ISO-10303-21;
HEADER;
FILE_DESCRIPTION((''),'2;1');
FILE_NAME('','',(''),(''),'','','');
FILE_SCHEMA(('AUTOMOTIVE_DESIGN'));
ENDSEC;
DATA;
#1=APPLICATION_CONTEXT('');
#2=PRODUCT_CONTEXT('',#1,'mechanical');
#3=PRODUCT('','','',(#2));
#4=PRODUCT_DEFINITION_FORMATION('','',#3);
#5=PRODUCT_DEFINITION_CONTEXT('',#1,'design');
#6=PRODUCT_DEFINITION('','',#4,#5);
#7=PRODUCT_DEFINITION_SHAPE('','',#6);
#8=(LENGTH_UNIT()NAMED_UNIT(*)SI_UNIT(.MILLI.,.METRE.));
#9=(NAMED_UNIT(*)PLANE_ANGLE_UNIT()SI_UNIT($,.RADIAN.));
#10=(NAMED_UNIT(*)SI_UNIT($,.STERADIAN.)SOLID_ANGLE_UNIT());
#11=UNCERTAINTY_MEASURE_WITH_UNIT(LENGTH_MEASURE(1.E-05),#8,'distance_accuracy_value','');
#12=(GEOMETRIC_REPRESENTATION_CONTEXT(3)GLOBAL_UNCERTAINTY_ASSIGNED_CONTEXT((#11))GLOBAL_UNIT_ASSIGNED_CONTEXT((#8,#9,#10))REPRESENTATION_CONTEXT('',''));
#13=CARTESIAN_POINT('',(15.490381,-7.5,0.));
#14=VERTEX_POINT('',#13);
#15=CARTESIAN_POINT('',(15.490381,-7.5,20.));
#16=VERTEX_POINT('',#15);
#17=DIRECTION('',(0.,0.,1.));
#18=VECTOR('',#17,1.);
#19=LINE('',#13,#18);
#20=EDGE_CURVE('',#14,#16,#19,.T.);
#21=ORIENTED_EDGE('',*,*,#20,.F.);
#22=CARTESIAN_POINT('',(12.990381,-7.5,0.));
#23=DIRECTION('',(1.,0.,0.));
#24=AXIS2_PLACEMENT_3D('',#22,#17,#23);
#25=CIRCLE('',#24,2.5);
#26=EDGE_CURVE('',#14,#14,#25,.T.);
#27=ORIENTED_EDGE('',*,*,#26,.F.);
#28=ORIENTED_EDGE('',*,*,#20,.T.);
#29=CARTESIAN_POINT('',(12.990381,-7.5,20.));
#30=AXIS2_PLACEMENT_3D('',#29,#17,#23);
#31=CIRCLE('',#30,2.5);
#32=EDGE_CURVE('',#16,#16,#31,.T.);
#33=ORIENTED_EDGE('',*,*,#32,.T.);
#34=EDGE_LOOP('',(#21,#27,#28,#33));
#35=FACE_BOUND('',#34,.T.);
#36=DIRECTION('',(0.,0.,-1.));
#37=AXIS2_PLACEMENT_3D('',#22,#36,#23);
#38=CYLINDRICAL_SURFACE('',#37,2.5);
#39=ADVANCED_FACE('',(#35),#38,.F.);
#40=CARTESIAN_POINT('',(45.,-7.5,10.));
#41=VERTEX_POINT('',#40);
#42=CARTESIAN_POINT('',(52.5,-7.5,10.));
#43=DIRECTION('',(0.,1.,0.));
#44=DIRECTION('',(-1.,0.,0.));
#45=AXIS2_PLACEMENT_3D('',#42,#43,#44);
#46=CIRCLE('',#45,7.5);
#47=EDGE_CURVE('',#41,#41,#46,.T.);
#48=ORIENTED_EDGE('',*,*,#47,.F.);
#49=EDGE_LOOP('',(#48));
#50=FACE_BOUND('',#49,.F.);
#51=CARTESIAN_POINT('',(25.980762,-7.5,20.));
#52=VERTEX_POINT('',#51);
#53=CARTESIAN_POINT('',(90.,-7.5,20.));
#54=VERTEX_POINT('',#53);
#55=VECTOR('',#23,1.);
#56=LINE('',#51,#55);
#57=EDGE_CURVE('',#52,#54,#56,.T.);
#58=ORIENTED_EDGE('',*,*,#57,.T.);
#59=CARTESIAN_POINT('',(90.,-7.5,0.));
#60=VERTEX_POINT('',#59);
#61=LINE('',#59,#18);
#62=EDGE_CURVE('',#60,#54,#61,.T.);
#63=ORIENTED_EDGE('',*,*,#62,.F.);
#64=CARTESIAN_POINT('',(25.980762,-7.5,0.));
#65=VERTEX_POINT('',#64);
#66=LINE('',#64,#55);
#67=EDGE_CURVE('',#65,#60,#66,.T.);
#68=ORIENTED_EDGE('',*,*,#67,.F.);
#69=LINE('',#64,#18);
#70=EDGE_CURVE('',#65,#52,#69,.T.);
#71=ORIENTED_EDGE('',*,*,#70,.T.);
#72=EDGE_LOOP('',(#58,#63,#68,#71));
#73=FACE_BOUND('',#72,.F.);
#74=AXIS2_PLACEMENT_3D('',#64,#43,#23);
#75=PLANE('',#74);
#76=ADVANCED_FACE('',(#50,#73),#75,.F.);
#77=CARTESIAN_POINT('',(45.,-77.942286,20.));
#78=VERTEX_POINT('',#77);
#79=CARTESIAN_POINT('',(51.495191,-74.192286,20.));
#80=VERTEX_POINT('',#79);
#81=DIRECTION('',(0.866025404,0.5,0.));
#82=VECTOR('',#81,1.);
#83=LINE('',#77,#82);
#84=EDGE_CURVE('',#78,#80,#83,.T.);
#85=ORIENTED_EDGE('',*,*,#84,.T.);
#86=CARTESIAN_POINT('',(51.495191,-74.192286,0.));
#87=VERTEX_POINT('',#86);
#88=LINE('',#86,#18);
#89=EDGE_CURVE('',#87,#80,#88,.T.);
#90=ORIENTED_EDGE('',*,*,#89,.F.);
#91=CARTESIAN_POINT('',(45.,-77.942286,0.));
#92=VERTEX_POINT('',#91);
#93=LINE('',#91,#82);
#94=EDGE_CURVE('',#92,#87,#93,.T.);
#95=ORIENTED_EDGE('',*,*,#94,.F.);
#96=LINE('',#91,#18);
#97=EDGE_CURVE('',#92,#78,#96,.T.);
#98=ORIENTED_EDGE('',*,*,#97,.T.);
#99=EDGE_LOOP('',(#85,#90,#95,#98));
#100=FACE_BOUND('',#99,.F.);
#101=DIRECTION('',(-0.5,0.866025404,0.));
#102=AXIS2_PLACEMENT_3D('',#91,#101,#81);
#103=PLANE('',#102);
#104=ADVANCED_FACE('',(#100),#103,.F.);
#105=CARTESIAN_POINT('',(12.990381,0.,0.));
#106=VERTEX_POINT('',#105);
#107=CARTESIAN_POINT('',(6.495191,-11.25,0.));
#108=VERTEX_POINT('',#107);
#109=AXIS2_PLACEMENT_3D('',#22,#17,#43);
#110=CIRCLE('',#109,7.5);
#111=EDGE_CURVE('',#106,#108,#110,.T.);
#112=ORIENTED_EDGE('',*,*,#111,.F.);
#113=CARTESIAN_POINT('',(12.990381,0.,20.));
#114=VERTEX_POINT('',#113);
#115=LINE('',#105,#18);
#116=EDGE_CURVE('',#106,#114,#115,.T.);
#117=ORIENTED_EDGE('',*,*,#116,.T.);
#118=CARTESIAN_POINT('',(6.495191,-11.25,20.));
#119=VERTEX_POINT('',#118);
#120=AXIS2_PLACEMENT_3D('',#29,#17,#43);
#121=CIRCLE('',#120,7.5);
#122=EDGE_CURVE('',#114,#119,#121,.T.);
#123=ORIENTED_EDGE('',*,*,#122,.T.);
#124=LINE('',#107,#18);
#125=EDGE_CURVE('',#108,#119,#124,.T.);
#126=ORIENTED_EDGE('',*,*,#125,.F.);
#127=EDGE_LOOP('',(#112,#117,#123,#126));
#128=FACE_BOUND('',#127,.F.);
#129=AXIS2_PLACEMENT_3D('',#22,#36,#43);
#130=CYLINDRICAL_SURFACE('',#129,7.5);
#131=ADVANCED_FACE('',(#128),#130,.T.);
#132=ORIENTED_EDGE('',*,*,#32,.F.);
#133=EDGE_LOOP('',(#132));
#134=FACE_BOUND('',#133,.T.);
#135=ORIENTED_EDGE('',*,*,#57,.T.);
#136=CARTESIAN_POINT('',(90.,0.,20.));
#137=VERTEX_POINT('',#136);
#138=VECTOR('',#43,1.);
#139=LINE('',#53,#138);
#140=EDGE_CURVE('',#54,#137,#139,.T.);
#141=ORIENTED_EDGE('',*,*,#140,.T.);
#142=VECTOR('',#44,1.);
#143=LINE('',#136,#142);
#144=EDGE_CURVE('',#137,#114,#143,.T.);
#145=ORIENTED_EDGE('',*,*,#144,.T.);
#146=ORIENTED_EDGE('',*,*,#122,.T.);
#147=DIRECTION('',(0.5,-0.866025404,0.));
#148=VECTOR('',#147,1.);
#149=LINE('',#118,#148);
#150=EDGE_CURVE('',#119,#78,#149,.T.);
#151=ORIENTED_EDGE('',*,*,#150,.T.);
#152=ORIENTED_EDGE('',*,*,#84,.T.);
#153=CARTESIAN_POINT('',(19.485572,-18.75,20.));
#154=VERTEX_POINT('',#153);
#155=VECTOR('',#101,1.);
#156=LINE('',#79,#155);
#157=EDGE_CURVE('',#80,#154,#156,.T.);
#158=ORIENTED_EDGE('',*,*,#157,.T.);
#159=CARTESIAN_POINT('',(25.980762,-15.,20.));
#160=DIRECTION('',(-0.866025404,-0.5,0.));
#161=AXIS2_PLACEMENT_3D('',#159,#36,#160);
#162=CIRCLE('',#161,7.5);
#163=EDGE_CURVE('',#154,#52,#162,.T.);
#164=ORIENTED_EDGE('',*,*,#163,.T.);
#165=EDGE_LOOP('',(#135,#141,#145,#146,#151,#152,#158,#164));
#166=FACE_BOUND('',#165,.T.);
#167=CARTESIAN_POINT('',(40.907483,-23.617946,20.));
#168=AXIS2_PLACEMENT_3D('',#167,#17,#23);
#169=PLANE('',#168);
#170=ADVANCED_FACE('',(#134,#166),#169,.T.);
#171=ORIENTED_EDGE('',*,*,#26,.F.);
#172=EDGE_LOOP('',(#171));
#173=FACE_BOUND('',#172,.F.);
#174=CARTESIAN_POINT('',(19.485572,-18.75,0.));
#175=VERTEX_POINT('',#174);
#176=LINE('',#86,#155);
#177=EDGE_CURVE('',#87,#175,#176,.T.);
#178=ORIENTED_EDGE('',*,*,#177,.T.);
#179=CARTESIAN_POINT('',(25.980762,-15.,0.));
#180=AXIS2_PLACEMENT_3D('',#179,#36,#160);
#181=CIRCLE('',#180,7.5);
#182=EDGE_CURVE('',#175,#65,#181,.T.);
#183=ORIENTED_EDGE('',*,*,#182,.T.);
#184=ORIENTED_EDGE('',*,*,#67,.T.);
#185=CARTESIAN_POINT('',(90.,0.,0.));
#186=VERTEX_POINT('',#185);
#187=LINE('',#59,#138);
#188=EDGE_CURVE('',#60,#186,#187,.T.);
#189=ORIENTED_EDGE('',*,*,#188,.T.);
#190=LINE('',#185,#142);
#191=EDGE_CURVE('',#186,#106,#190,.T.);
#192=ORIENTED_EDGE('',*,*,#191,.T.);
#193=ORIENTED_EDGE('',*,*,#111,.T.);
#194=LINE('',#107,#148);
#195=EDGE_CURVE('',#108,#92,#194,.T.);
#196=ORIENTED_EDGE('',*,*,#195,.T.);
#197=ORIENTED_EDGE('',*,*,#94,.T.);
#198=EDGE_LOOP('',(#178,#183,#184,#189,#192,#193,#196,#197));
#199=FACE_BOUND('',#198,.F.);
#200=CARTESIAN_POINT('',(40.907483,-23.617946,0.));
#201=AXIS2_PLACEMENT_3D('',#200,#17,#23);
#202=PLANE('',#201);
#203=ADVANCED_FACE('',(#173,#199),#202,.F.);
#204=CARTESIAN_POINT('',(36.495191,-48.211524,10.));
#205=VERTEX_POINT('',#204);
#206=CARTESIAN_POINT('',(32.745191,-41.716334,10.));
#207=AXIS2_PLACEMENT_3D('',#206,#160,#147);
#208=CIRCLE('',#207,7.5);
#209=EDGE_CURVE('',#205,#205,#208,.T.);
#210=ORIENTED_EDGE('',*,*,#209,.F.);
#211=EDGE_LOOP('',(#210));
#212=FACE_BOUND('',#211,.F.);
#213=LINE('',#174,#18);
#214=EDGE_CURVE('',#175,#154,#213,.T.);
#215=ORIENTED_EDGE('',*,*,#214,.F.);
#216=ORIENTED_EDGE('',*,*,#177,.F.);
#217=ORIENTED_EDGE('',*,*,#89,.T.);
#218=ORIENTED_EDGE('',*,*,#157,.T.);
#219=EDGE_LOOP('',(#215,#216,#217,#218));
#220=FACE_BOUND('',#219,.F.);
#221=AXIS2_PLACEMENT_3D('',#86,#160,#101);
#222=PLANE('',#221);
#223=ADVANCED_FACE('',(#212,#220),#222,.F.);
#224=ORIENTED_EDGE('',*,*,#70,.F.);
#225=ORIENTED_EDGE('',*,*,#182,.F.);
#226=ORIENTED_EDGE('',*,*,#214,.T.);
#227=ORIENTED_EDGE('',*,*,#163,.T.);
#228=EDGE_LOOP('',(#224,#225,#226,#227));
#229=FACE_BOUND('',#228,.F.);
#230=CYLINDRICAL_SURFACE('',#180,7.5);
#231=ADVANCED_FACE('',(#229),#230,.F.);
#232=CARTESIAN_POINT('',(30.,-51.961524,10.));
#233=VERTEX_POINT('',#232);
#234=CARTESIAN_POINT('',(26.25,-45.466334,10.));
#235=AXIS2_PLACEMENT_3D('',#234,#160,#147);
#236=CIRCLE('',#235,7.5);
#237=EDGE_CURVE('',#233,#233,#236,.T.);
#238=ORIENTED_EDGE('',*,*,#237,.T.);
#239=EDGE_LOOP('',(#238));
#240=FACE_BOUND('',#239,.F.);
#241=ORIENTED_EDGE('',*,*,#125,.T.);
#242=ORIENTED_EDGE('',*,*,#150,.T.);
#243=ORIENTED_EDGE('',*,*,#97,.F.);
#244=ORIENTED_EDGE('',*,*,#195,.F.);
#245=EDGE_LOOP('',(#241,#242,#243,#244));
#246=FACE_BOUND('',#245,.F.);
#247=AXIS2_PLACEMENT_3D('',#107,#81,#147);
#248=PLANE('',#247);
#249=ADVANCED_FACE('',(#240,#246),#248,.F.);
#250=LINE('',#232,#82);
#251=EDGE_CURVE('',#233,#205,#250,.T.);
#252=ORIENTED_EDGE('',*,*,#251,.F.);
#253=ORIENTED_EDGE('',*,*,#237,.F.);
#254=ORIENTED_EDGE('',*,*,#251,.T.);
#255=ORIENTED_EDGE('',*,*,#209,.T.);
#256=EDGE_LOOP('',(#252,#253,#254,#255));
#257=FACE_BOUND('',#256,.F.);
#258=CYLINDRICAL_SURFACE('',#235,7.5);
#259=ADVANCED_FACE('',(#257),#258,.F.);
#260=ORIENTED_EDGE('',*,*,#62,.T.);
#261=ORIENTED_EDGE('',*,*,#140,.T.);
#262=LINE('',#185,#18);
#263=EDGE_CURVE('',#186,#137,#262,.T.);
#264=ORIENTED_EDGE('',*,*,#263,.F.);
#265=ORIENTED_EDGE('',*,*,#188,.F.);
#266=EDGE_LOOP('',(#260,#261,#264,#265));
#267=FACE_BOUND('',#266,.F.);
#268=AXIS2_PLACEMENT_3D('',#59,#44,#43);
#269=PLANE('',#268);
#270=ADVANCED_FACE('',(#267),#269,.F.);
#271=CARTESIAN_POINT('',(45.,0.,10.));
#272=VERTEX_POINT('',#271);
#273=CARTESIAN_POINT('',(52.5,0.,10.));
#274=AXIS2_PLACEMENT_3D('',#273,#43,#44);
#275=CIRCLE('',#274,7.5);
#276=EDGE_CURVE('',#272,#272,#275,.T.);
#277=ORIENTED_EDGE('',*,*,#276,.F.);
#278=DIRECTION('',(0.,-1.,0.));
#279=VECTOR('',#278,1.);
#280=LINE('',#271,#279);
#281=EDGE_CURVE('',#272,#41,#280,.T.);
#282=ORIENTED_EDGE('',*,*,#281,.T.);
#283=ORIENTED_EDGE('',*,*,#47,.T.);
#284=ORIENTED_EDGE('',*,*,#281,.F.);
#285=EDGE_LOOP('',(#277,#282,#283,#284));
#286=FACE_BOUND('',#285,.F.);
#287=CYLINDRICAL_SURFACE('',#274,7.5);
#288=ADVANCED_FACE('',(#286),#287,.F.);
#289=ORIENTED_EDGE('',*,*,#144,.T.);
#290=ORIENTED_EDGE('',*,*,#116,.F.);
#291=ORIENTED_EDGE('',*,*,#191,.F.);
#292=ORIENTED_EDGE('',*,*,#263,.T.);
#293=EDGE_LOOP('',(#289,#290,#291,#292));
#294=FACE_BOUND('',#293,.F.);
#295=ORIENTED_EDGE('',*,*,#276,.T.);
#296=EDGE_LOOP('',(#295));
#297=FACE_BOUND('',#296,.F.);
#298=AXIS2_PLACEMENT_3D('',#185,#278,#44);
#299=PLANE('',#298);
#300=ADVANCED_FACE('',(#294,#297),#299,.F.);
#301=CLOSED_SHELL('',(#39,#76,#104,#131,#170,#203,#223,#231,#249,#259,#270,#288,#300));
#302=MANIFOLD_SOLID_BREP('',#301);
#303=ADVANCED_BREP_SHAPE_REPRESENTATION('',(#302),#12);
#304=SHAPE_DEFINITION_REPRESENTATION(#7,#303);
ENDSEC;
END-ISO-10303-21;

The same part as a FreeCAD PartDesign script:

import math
import FreeCAD as App
import Part
import Sketcher
Q = App.Units.Quantity

doc = App.newDocument("Part")
params = doc.addObject("Spreadsheet::Sheet", "Params")
for row, (alias, value) in enumerate([
    ("sketch1_diameter", "5 mm"),
    ("sketch1_radius", "7.5 mm"),
    ("sketch1_length", "7.5 mm"),
    ("pad1_length", "20 mm"),
    ("sketch2_diameter", "15 mm"),
    ("pocket1_length", "25 mm"),
    ("sketch3_diameter", "15 mm"),
    ("pocket2_length", "25 mm"),
], start=1):
    params.set(f"A{row}", alias)
    params.set(f"B{row}", "=" + value)
    params.setAlias(f"B{row}", alias)

body = doc.addObject("PartDesign::Body", "Body")

sketch1 = body.newObject("Sketcher::SketchObject", "Sketch")
sketch1.AttachmentSupport = (doc.getObject("XY_Plane"), [""])
sketch1.MapMode = "FlatFace"
sketch1.addGeometry([
    Part.LineSegment(App.Vector(90, 0, 0), App.Vector(13, 0, 0)),
    Part.ArcOfCircle(Part.Circle(App.Vector(13, -7.5, 0), App.Vector(0, 0, 1), 7.5), math.radians(90), math.radians(210)),
    Part.LineSegment(App.Vector(6.5, -11.2, 0), App.Vector(45, -77.9, 0)),
    Part.LineSegment(App.Vector(45, -77.9, 0), App.Vector(51.5, -74.2, 0)),
    Part.LineSegment(App.Vector(51.5, -74.2, 0), App.Vector(19.5, -18.8, 0)),
    Part.ArcOfCircle(Part.Circle(App.Vector(26, -15, 0), App.Vector(0, 0, 1), 7.5), math.radians(90), math.radians(210)),
    Part.LineSegment(App.Vector(26, -7.5, 0), App.Vector(90, -7.5, 0)),
    Part.LineSegment(App.Vector(90, -7.5, 0), App.Vector(90, 0, 0)),
    Part.Circle(App.Vector(13, -7.5, 0), App.Vector(0, 0, 1), 2.5),
], False)
sketch1.addConstraint([
    Sketcher.Constraint("Tangent", 0, 2, 1, 1),
    Sketcher.Constraint("Tangent", 1, 2, 2, 1),
    Sketcher.Constraint("Coincident", 2, 2, 3, 1),
    Sketcher.Constraint("Coincident", 3, 2, 4, 1),
    Sketcher.Constraint("Tangent", 4, 2, 5, 2),
    Sketcher.Constraint("Tangent", 5, 1, 6, 1),
    Sketcher.Constraint("Coincident", 6, 2, 7, 1),
    Sketcher.Constraint("Coincident", 7, 2, 0, 1),
    Sketcher.Constraint("Horizontal", 0),
    Sketcher.Constraint("Horizontal", 6),
    Sketcher.Constraint("Vertical", 7),
    Sketcher.Constraint("Coincident", 8, 3, 1, 3),
    Sketcher.Constraint("Equal", 1, 5),
    Sketcher.Constraint("PointOnObject", 0, 2, -1),
    Sketcher.Constraint("Perpendicular", 2, 3),
    Sketcher.Constraint("Perpendicular", 3, 4),
    Sketcher.Constraint("Horizontal", 8, 3, 5, 1),
    Sketcher.Constraint("Diameter", 8, 5.0),
    Sketcher.Constraint("Radius", 1, 7.5),
    Sketcher.Constraint("Angle", 2, Q("-60 deg")),
    Sketcher.Constraint("DistanceX", -1, 1, 2, 2, 45.0),
    Sketcher.Constraint("DistanceX", -1, 1, 6, 2, 90.0),
    Sketcher.Constraint("DistanceX", 1, 2, 3, 2, 45.0),
    Sketcher.Constraint("Distance", 3, 7.5),
])
sketch1.setExpression("Constraints[17]", "Params.sketch1_diameter")
sketch1.setExpression("Constraints[18]", "Params.sketch1_radius")
sketch1.setExpression("Constraints[23]", "Params.sketch1_length")
pad1 = body.newObject("PartDesign::Pad", "Pad")
pad1.Profile = sketch1
pad1.setExpression("Length", "Params.pad1_length")

sketch2 = body.newObject("Sketcher::SketchObject", "Sketch001")
sketch2.Placement = App.Placement(App.Vector(0, 0, 0), App.Rotation(App.Vector(0.5, -0.866025404, 0), App.Vector(0, 0, 1), App.Vector(-0.866025404, -0.5, 0), "ZXY"))
sketch2.addGeometry(Part.Circle(App.Vector(53, 10, 0), App.Vector(0, 0, 1), 8), False)
sketch2.addConstraint([
    Sketcher.Constraint("Diameter", 0, 15.0),
    Sketcher.Constraint("DistanceY", -1, 1, 0, 3, 10.0),
    Sketcher.Constraint("DistanceX", -1, 1, 0, 3, 52.5),
])
sketch2.setExpression("Constraints[0]", "Params.sketch2_diameter")
pocket1 = body.newObject("PartDesign::Pocket", "Pocket")
pocket1.Profile = sketch2
pocket1.setExpression("Length", "Params.pocket1_length")

sketch3 = body.newObject("Sketcher::SketchObject", "Sketch002")
sketch3.AttachmentSupport = (doc.getObject("XZ_Plane"), [""])
sketch3.MapMode = "FlatFace"
sketch3.addGeometry(Part.Circle(App.Vector(52, 10, 0), App.Vector(0, 0, 1), 8), False)
sketch3.addConstraint([
    Sketcher.Constraint("Diameter", 0, 15.0),
    Sketcher.Constraint("DistanceY", -1, 1, 0, 3, 10.0),
    Sketcher.Constraint("DistanceX", -1, 1, 0, 3, 52.5),
])
sketch3.setExpression("Constraints[0]", "Params.sketch3_diameter")
pocket2 = body.newObject("PartDesign::Pocket", "Pocket001")
pocket2.Profile = sketch3
pocket2.setExpression("Length", "Params.pocket2_length")
pocket2.Reversed = True

doc.recompute()
